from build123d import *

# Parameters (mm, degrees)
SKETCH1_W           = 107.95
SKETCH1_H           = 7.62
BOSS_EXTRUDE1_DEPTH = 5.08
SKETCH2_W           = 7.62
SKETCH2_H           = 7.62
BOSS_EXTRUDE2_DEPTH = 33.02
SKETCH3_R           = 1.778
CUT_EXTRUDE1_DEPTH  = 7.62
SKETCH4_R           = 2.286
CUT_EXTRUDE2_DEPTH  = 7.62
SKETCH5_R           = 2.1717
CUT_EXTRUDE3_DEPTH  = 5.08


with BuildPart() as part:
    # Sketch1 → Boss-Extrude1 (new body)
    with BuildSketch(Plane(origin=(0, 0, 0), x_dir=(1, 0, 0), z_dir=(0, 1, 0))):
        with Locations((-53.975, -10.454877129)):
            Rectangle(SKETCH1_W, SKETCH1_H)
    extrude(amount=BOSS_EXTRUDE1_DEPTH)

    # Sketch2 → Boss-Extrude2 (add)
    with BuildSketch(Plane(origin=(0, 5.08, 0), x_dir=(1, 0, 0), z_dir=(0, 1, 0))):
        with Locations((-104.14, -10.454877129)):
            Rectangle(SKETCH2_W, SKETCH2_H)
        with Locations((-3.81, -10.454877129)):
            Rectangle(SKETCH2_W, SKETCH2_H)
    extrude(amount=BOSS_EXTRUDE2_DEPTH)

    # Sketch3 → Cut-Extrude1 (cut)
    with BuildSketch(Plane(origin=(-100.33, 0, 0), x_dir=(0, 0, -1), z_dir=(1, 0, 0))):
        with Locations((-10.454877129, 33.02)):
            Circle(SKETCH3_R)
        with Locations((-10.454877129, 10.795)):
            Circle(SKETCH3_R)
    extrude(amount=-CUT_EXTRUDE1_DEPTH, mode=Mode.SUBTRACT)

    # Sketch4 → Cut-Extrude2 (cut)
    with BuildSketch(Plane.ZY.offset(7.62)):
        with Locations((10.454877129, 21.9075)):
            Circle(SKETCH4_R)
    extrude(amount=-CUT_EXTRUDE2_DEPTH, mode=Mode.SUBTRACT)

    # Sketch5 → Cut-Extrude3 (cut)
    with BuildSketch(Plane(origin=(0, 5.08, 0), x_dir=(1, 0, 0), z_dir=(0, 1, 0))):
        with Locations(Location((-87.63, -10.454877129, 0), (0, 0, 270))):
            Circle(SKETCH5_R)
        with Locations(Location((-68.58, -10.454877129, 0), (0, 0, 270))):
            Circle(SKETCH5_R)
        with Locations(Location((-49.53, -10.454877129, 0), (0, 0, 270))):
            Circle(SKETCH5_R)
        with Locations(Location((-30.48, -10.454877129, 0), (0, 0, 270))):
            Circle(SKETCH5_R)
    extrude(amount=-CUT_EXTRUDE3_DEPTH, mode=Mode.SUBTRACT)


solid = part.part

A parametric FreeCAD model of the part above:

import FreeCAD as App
import Part
import Sketcher
Q = App.Units.Quantity


def add_polygon(sketch, points):
    """Adds a closed chain of lines whose ends are joined by coincident constraints."""
    first, n = sketch.GeometryCount, len(points)
    for a, b in zip(points, points[1:] + points[:1]):
        sketch.addGeometry(Part.LineSegment(App.Vector(*a, 0), App.Vector(*b, 0)), False)
    for i in range(n):
        sketch.addConstraint(Sketcher.Constraint("Coincident", first + i, 2, first + (i + 1) % n, 1))

doc = App.newDocument("Part")
body = doc.addObject("PartDesign::Body", "Body")

sketch1 = body.newObject("Sketcher::SketchObject", "Sketch")
sketch1.AttachmentSupport = (doc.getObject("XZ_Plane"), [""])
sketch1.MapMode = "FlatFace"
add_polygon(sketch1, [(-108, 7), (-108, 14), (0, 14), (0, 7)])
sketch1.addConstraint(Sketcher.Constraint("Vertical", 0))
sketch1.addConstraint(Sketcher.Constraint("Horizontal", 1))
sketch1.addConstraint(Sketcher.Constraint("Vertical", 2))
sketch1.addConstraint(Sketcher.Constraint("Horizontal", 3))
sketch1.addConstraint(Sketcher.Constraint("PointOnObject", 1, 2, -2))
sketch1.addConstraint(Sketcher.Constraint("DistanceY", 0, 1, 0, 2, Q("0.3 in")))
sketch1.addConstraint(Sketcher.Constraint("DistanceX", 1, 1, 1, 2, Q("4.25 in")))
sketch1.addConstraint(Sketcher.Constraint("DistanceY", -1, 1, 0, 2, 14.264877))
pad1 = body.newObject("PartDesign::Pad", "Pad")
pad1.Profile = sketch1
pad1.Length = Q("0.2 in")
pad1.Reversed = True

sketch2 = body.newObject("Sketcher::SketchObject", "Sketch001")
sketch2.AttachmentSupport = (doc.getObject("XZ_Plane"), [""])
sketch2.MapMode = "FlatFace"
sketch2.AttachmentOffset = App.Placement(App.Vector(0, 0, -0.2 * 25.4), App.Rotation())
add_polygon(sketch2, [(-108, 7), (-108, 14), (-100, 14), (-100, 7)])
add_polygon(sketch2, [(-8, 7), (-8, 14), (0, 14), (0, 7)])
sketch2.addConstraint(Sketcher.Constraint("Vertical", 0))
sketch2.addConstraint(Sketcher.Constraint("Horizontal", 1))
sketch2.addConstraint(Sketcher.Constraint("Vertical", 2))
sketch2.addConstraint(Sketcher.Constraint("Horizontal", 3))
sketch2.addConstraint(Sketcher.Constraint("Vertical", 4))
sketch2.addConstraint(Sketcher.Constraint("Horizontal", 5))
sketch2.addConstraint(Sketcher.Constraint("Vertical", 6))
sketch2.addConstraint(Sketcher.Constraint("Horizontal", 7))
sketch2.addConstraint(Sketcher.Constraint("PointOnObject", 5, 2, -2))
sketch2.addConstraint(Sketcher.Constraint("Horizontal", 1, 2, 4, 2))
sketch2.addConstraint(Sketcher.Constraint("Horizontal", 3, 2, 6, 2))
sketch2.addConstraint(Sketcher.Constraint("Equal", 3, 5))
sketch2.addConstraint(Sketcher.Constraint("Equal", 7, 0))
sketch2.addConstraint(Sketcher.Constraint("DistanceX", 1, 1, 1, 2, Q("0.3 in")))
sketch2.addConstraint(Sketcher.Constraint("DistanceX", 0, 2, -1, 1, Q("4.25 in")))
sketch2.addConstraint(Sketcher.Constraint("DistanceY", -1, 1, 0, 2, 14.264877))
pad2 = body.newObject("PartDesign::Pad", "Pad001")
pad2.Profile = sketch2
pad2.Length = Q("1.3 in")
pad2.Reversed = True

sketch3 = body.newObject("Sketcher::SketchObject", "Sketch002")
sketch3.AttachmentSupport = (doc.getObject("YZ_Plane"), [""])
sketch3.MapMode = "FlatFace"
sketch3.AttachmentOffset = App.Placement(App.Vector(0, 0, -3.95 * 25.4), App.Rotation())
sketch3.addGeometry(Part.Circle(App.Vector(33, 10.5, 0), App.Vector(0, 0, 1), 1.8), False)
sketch3.addGeometry(Part.Circle(App.Vector(10.8, 10.5, 0), App.Vector(0, 0, 1), 1.8), False)
sketch3.addConstraint(Sketcher.Constraint("Equal", 0, 1))
sketch3.addConstraint(Sketcher.Constraint("Horizontal", 0, 3, 1, 3))
sketch3.addConstraint(Sketcher.Constraint("Diameter", 0, Q("0.14 in")))
sketch3.addConstraint(Sketcher.Constraint("DistanceX", -1, 1, 0, 3, Q("1.3 in")))
sketch3.addConstraint(Sketcher.Constraint("DistanceX", -1, 1, 1, 3, Q("0.425 in")))
sketch3.addConstraint(Sketcher.Constraint("DistanceY", -1, 1, 0, 3, 10.454877))
pocket1 = body.newObject("PartDesign::Pocket", "Pocket")
pocket1.Profile = sketch3
pocket1.Length = Q("0.3 in")

sketch4 = body.newObject("Sketcher::SketchObject", "Sketch003")
sketch4.AttachmentSupport = (doc.getObject("YZ_Plane"), [""])
sketch4.MapMode = "FlatFace"
sketch4.AttachmentOffset = App.Placement(App.Vector(0, 0, -0.3 * 25.4), App.Rotation())
sketch4.addGeometry(Part.Circle(App.Vector(21.9, 10.5, 0), App.Vector(0, 0, 1), 2.3), False)
sketch4.addConstraint(Sketcher.Constraint("Diameter", 0, Q("0.18 in")))
sketch4.addConstraint(Sketcher.Constraint("DistanceX", -1, 1, 0, 3, Q("0.8625 in")))
sketch4.addConstraint(Sketcher.Constraint("DistanceY", -1, 1, 0, 3, 10.454877))
pocket2 = body.newObject("PartDesign::Pocket", "Pocket001")
pocket2.Profile = sketch4
pocket2.Length = Q("0.3 in")
pocket2.Reversed = True

sketch5 = body.newObject("Sketcher::SketchObject", "Sketch004")
sketch5.AttachmentSupport = (doc.getObject("XZ_Plane"), [""])
sketch5.MapMode = "FlatFace"
sketch5.AttachmentOffset = App.Placement(App.Vector(0, 0, -0.2 * 25.4), App.Rotation())
sketch5.addGeometry(Part.Circle(App.Vector(-87.6, 10.5, 0), App.Vector(0, 0, 1), 2.2), False)
sketch5.addGeometry(Part.Circle(App.Vector(-68.6, 10.5, 0), App.Vector(0, 0, 1), 2.2), False)
sketch5.addGeometry(Part.Circle(App.Vector(-49.5, 10.5, 0), App.Vector(0, 0, 1), 2.2), False)
sketch5.addGeometry(Part.Circle(App.Vector(-30.5, 10.5, 0), App.Vector(0, 0, 1), 2.2), False)
sketch5.addConstraint(Sketcher.Constraint("Equal", 0, 1))
sketch5.addConstraint(Sketcher.Constraint("Equal", 1, 2))
sketch5.addConstraint(Sketcher.Constraint("Equal", 2, 3))
sketch5.addConstraint(Sketcher.Constraint("Horizontal", 0, 3, 1, 3))
sketch5.addConstraint(Sketcher.Constraint("Horizontal", 1, 3, 2, 3))
sketch5.addConstraint(Sketcher.Constraint("Horizontal", 2, 3, 3, 3))
sketch5.addConstraint(Sketcher.Constraint("Diameter", 0, Q("0.171 in")))
sketch5.addConstraint(Sketcher.Constraint("DistanceX", 1, 3, -1, 1, Q("2.7 in")))
sketch5.addConstraint(Sketcher.Constraint("DistanceX", 3, 3, -1, 1, Q("1.2 in")))
sketch5.addConstraint(Sketcher.Constraint("DistanceX", 0, 3, 2, 3, Q("1.5 in")))
sketch5.addConstraint(Sketcher.Constraint("DistanceX", 0, 3, -1, 1, Q("3.45 in")))
sketch5.addConstraint(Sketcher.Constraint("DistanceY", -1, 1, 0, 3, 10.454877))
pocket3 = body.newObject("PartDesign::Pocket", "Pocket002")
pocket3.Profile = sketch5
pocket3.Length = Q("0.2 in")
pocket3.Reversed = True

doc.recompute()
